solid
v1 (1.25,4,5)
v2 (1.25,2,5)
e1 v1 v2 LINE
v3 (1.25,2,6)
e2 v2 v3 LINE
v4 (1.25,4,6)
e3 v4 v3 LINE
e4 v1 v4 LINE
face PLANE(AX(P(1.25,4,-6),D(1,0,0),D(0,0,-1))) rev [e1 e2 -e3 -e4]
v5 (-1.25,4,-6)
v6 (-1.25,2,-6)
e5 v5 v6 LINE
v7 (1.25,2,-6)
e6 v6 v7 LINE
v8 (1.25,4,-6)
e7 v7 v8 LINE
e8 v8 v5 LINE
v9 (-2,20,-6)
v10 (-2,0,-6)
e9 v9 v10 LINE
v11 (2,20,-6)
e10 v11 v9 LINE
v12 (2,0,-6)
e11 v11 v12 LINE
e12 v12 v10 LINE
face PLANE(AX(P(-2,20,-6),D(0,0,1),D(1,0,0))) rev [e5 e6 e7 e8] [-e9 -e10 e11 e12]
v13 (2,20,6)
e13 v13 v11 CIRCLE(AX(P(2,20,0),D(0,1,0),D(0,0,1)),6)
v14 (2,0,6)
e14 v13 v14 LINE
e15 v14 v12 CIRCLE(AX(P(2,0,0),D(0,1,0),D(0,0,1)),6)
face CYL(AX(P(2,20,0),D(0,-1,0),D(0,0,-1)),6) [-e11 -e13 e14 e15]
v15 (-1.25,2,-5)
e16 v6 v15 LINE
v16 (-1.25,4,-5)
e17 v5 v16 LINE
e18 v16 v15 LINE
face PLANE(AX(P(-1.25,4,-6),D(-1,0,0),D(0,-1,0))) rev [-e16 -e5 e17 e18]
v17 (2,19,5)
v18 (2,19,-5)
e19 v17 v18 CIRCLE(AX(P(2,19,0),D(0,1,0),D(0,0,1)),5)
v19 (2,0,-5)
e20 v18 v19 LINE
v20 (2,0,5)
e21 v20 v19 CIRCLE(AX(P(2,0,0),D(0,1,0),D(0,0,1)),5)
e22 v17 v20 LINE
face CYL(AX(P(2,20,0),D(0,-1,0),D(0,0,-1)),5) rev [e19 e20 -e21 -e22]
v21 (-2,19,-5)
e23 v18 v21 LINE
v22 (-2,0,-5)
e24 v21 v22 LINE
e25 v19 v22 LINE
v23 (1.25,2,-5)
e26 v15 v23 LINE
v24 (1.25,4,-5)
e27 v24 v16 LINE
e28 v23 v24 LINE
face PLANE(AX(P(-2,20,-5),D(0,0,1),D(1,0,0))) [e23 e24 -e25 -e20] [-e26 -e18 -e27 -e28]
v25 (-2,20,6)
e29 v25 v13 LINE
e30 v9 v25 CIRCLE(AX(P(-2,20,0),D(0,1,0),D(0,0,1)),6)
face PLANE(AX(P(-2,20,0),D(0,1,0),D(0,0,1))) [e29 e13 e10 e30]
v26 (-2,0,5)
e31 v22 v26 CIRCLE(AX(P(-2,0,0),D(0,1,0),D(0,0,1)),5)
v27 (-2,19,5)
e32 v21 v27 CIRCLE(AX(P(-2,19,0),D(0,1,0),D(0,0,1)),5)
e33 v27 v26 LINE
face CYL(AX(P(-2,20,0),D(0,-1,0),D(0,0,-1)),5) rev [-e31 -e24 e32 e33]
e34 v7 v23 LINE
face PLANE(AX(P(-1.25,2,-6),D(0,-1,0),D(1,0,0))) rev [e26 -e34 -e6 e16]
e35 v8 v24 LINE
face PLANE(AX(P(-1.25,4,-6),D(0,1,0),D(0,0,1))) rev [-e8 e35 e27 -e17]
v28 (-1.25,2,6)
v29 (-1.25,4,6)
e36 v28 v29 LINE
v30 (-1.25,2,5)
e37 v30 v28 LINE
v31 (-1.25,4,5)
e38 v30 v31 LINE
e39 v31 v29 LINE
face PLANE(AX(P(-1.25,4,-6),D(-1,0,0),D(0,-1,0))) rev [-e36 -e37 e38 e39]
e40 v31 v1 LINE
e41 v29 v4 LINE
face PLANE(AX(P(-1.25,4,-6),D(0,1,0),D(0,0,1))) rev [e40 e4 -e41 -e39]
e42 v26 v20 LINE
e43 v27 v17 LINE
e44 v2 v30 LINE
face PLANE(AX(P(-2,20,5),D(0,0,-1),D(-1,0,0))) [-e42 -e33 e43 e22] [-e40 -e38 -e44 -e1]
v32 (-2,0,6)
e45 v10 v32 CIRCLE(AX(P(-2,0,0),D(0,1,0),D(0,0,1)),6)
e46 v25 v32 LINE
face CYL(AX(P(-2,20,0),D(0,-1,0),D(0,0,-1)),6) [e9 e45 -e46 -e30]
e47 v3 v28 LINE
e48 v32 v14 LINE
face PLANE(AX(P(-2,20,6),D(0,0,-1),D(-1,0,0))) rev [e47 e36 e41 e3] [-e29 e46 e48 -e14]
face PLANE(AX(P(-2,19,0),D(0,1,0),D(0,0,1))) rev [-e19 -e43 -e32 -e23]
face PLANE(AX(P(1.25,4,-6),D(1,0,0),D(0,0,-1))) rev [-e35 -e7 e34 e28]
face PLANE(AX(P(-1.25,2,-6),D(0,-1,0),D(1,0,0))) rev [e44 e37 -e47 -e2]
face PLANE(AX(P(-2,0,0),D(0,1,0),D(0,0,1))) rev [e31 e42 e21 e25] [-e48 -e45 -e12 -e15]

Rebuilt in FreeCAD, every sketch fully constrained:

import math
import FreeCAD as App
import Part
import Sketcher

V = App.Vector
Q = App.Units.Quantity


def faces_at(feature, points):
    """Names of the faces that lie closest to the given points."""
    faces = feature.Shape.Faces
    near = lambda p: min(range(len(faces)), key=lambda i: faces[i].distToShape(Part.Vertex(*p))[0])
    return sorted({f"Face{near(p) + 1}" for p in points})

doc = App.newDocument("Part")
body = doc.addObject("PartDesign::Body", "Body")

# Sketch on XZ plane
sketch1 = body.newObject("Sketcher::SketchObject", "Sketch")
sketch1.AttachmentSupport = (doc.getObject("XZ_Plane"), [""])
sketch1.MapMode = "FlatFace"
sketch1.addGeometry([
    Part.LineSegment(V(-2, 6, 0), V(2, 6, 0)),
    Part.ArcOfCircle(Part.Circle(V(2, 0, 0), V(0, 0, 1), 6), math.radians(-90), math.radians(90)),
    Part.LineSegment(V(2, -6, 0), V(-2, -6, 0)),
    Part.ArcOfCircle(Part.Circle(V(-2, 0, 0), V(0, 0, 1), 6), math.radians(90), math.radians(270)),
], False)
sketch1.addConstraint([
    Sketcher.Constraint("Tangent", 0, 2, 1, 2),
    Sketcher.Constraint("Tangent", 1, 1, 2, 1),
    Sketcher.Constraint("Tangent", 2, 2, 3, 2),
    Sketcher.Constraint("Tangent", 3, 1, 0, 1),
    Sketcher.Constraint("Horizontal", 0),
    Sketcher.Constraint("Horizontal", 2),
    Sketcher.Constraint("Symmetric", 1, 3, 3, 3, -1, 1),
    Sketcher.Constraint("Radius", 1, Q("6 mm")),
    Sketcher.Constraint("DistanceX", 0, 1, 0, 2, Q("4 mm")),
])
pad1 = body.newObject("PartDesign::Pad", "Pad")
pad1.Profile = sketch1
pad1.Length = 20
pad1.Reversed = True
doc.recompute()

thickness = body.newObject("PartDesign::Thickness", "Thickness")
thickness.Base = (pad1, faces_at(pad1, [(0, 0, 0)]))
thickness.Value = 1
thickness.Reversed = True
thickness.Join = "Intersection"

# Sketch on XY plane
sketch2 = body.newObject("Sketcher::SketchObject", "Sketch001")
sketch2.AttachmentSupport = (doc.getObject("XY_Plane"), [""])
sketch2.MapMode = "FlatFace"
sketch2.AttachmentOffset = App.Placement(V(0, 0, 6), App.Rotation())
sketch2.addGeometry([
    Part.LineSegment(V(-1.2, 4, 0), V(-1.2, 2, 0)),
    Part.LineSegment(V(-1.2, 2, 0), V(1.2, 2, 0)),
    Part.LineSegment(V(1.2, 2, 0), V(1.2, 4, 0)),
    Part.LineSegment(V(1.2, 4, 0), V(-1.2, 4, 0)),
], False)
sketch2.addConstraint([
    Sketcher.Constraint("Coincident", 0, 2, 1, 1),
    Sketcher.Constraint("Coincident", 1, 2, 2, 1),
    Sketcher.Constraint("Coincident", 2, 2, 3, 1),
    Sketcher.Constraint("Coincident", 3, 2, 0, 1),
    Sketcher.Constraint("Vertical", 0),
    Sketcher.Constraint("Horizontal", 1),
    Sketcher.Constraint("Vertical", 2),
    Sketcher.Constraint("Horizontal", 3),
    Sketcher.Constraint("DistanceY", 0, 2, 0, 1, Q("2 mm")),
    Sketcher.Constraint("DistanceX", 1, 1, 1, 2, Q("2.5 mm")),
    Sketcher.Constraint("DistanceY", -1, 1, 0, 2, Q("2 mm")),
    Sketcher.Constraint("DistanceX", 0, 2, -1, 1, Q("1.25 mm")),
])
pocket1 = body.newObject("PartDesign::Pocket", "Pocket")
pocket1.Profile = sketch2
pocket1.Type = "ThroughAll"
pocket1.Midplane = True

doc.recompute()
